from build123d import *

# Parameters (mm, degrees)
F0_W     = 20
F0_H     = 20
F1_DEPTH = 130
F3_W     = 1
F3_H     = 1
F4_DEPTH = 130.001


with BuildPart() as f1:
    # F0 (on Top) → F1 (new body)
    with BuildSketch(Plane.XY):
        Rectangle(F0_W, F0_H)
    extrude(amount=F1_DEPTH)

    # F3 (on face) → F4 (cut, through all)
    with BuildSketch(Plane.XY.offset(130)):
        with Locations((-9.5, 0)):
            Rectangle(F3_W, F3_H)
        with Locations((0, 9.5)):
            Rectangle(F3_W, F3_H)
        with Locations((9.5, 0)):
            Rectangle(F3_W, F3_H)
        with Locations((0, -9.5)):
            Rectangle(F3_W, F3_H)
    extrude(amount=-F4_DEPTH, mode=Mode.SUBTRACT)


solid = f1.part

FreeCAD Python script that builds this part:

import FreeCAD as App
import Part
import Sketcher

V = App.Vector

doc = App.newDocument("Part")
body = doc.addObject("PartDesign::Body", "Body")

# Sketch on XY plane
sketch1 = body.newObject("Sketcher::SketchObject", "Sketch")
sketch1.AttachmentSupport = (doc.getObject("XY_Plane"), [""])
sketch1.MapMode = "FlatFace"
sketch1.addGeometry(Part.LineSegment(V(-10, 10, 0), V(-10, -10, 0)), False)
sketch1.addGeometry(Part.LineSegment(V(-10, -10, 0), V(10, -10, 0)), False)
sketch1.addGeometry(Part.LineSegment(V(10, -10, 0), V(10, 10, 0)), False)
sketch1.addGeometry(Part.LineSegment(V(10, 10, 0), V(-10, 10, 0)), False)
sketch1.addConstraint(Sketcher.Constraint("Coincident", 0, 2, 1, 1))
sketch1.addConstraint(Sketcher.Constraint("Coincident", 1, 2, 2, 1))
sketch1.addConstraint(Sketcher.Constraint("Coincident", 2, 2, 3, 1))
sketch1.addConstraint(Sketcher.Constraint("Coincident", 3, 2, 0, 1))
sketch1.addConstraint(Sketcher.Constraint("Vertical", 0))
sketch1.addConstraint(Sketcher.Constraint("Horizontal", 1))
sketch1.addConstraint(Sketcher.Constraint("Vertical", 2))
sketch1.addConstraint(Sketcher.Constraint("Horizontal", 3))
sketch1.addConstraint(Sketcher.Constraint("Symmetric", 0, 2, 2, 2, -1, 1))
sketch1.addConstraint(Sketcher.Constraint("Equal", 3, 0))
sketch1.addConstraint(Sketcher.Constraint("DistanceX", 1, 1, 1, 2, 20.0))
pad1 = body.newObject("PartDesign::Pad", "Pad")
pad1.Profile = sketch1
pad1.Length = 130

# Sketch on XY plane
sketch2 = body.newObject("Sketcher::SketchObject", "Sketch001")
sketch2.AttachmentSupport = (doc.getObject("XY_Plane"), [""])
sketch2.MapMode = "FlatFace"
sketch2.AttachmentOffset = App.Placement(V(0, 0, 130), App.Rotation())
sketch2.addGeometry(Part.LineSegment(V(-10, 0.5, 0), V(-10, -0.5, 0)), False)
sketch2.addGeometry(Part.LineSegment(V(-10, -0.5, 0), V(-9, -0.5, 0)), False)
sketch2.addGeometry(Part.LineSegment(V(-9, -0.5, 0), V(-9, 0.5, 0)), False)
sketch2.addGeometry(Part.LineSegment(V(-9, 0.5, 0), V(-10, 0.5, 0)), False)
sketch2.addGeometry(Part.LineSegment(V(-0.5, 10, 0), V(-0.5, 9, 0)), False)
sketch2.addGeometry(Part.LineSegment(V(-0.5, 9, 0), V(0.5, 9, 0)), False)
sketch2.addGeometry(Part.LineSegment(V(0.5, 9, 0), V(0.5, 10, 0)), False)
sketch2.addGeometry(Part.LineSegment(V(0.5, 10, 0), V(-0.5, 10, 0)), False)
sketch2.addGeometry(Part.LineSegment(V(9, 0.5, 0), V(9, -0.5, 0)), False)
sketch2.addGeometry(Part.LineSegment(V(9, -0.5, 0), V(10, -0.5, 0)), False)
sketch2.addGeometry(Part.LineSegment(V(10, -0.5, 0), V(10, 0.5, 0)), False)
sketch2.addGeometry(Part.LineSegment(V(10, 0.5, 0), V(9, 0.5, 0)), False)
sketch2.addGeometry(Part.LineSegment(V(-0.5, -9, 0), V(-0.5, -10, 0)), False)
sketch2.addGeometry(Part.LineSegment(V(-0.5, -10, 0), V(0.5, -10, 0)), False)
sketch2.addGeometry(Part.LineSegment(V(0.5, -10, 0), V(0.5, -9, 0)), False)
sketch2.addGeometry(Part.LineSegment(V(0.5, -9, 0), V(-0.5, -9, 0)), False)
sketch2.addConstraint(Sketcher.Constraint("Coincident", 0, 2, 1, 1))
sketch2.addConstraint(Sketcher.Constraint("Coincident", 1, 2, 2, 1))
sketch2.addConstraint(Sketcher.Constraint("Coincident", 2, 2, 3, 1))
sketch2.addConstraint(Sketcher.Constraint("Coincident", 3, 2, 0, 1))
sketch2.addConstraint(Sketcher.Constraint("Coincident", 4, 2, 5, 1))
sketch2.addConstraint(Sketcher.Constraint("Coincident", 5, 2, 6, 1))
sketch2.addConstraint(Sketcher.Constraint("Coincident", 6, 2, 7, 1))
sketch2.addConstraint(Sketcher.Constraint("Coincident", 7, 2, 4, 1))
sketch2.addConstraint(Sketcher.Constraint("Coincident", 8, 2, 9, 1))
sketch2.addConstraint(Sketcher.Constraint("Coincident", 9, 2, 10, 1))
sketch2.addConstraint(Sketcher.Constraint("Coincident", 10, 2, 11, 1))
sketch2.addConstraint(Sketcher.Constraint("Coincident", 11, 2, 8, 1))
sketch2.addConstraint(Sketcher.Constraint("Coincident", 12, 2, 13, 1))
sketch2.addConstraint(Sketcher.Constraint("Coincident", 13, 2, 14, 1))
sketch2.addConstraint(Sketcher.Constraint("Coincident", 14, 2, 15, 1))
sketch2.addConstraint(Sketcher.Constraint("Coincident", 15, 2, 12, 1))
sketch2.addConstraint(Sketcher.Constraint("Vertical", 0))
sketch2.addConstraint(Sketcher.Constraint("Horizontal", 1))
sketch2.addConstraint(Sketcher.Constraint("Vertical", 2))
sketch2.addConstraint(Sketcher.Constraint("Horizontal", 3))
sketch2.addConstraint(Sketcher.Constraint("Vertical", 4))
sketch2.addConstraint(Sketcher.Constraint("Horizontal", 5))
sketch2.addConstraint(Sketcher.Constraint("Vertical", 6))
sketch2.addConstraint(Sketcher.Constraint("Horizontal", 7))
sketch2.addConstraint(Sketcher.Constraint("Vertical", 8))
sketch2.addConstraint(Sketcher.Constraint("Horizontal", 9))
sketch2.addConstraint(Sketcher.Constraint("Vertical", 10))
sketch2.addConstraint(Sketcher.Constraint("Horizontal", 11))
sketch2.addConstraint(Sketcher.Constraint("Vertical", 12))
sketch2.addConstraint(Sketcher.Constraint("Horizontal", 13))
sketch2.addConstraint(Sketcher.Constraint("Vertical", 14))
sketch2.addConstraint(Sketcher.Constraint("Horizontal", 15))
sketch2.addConstraint(Sketcher.Constraint("Symmetric", 2, 2, 8, 2, -1, 1))
sketch2.addConstraint(Sketcher.Constraint("Symmetric", 0, 2, 10, 2, -1, 1))
sketch2.addConstraint(Sketcher.Constraint("Symmetric", 6, 2, 12, 2, -1, 1))
sketch2.addConstraint(Sketcher.Constraint("Symmetric", 4, 2, 14, 2, -1, 1))
sketch2.addConstraint(Sketcher.Constraint("Horizontal", 1, 2, 8, 2))
sketch2.addConstraint(Sketcher.Constraint("Vertical", 7, 2, 12, 2))
sketch2.addConstraint(Sketcher.Constraint("Equal", 3, 5))
sketch2.addConstraint(Sketcher.Constraint("Equal", 15, 0))
sketch2.addConstraint(Sketcher.Constraint("Equal", 2, 4))
sketch2.addConstraint(Sketcher.Constraint("DistanceX", 1, 1, 1, 2, 1.0))
sketch2.addConstraint(Sketcher.Constraint("DistanceX", 0, 2, -1, 1, 10.0))
sketch2.addConstraint(Sketcher.Constraint("DistanceY", -1, 1, 4, 2, 9.0))
pocket1 = body.newObject("PartDesign::Pocket", "Pocket")
pocket1.Profile = sketch2
pocket1.Type = "ThroughAll"

doc.recompute()
